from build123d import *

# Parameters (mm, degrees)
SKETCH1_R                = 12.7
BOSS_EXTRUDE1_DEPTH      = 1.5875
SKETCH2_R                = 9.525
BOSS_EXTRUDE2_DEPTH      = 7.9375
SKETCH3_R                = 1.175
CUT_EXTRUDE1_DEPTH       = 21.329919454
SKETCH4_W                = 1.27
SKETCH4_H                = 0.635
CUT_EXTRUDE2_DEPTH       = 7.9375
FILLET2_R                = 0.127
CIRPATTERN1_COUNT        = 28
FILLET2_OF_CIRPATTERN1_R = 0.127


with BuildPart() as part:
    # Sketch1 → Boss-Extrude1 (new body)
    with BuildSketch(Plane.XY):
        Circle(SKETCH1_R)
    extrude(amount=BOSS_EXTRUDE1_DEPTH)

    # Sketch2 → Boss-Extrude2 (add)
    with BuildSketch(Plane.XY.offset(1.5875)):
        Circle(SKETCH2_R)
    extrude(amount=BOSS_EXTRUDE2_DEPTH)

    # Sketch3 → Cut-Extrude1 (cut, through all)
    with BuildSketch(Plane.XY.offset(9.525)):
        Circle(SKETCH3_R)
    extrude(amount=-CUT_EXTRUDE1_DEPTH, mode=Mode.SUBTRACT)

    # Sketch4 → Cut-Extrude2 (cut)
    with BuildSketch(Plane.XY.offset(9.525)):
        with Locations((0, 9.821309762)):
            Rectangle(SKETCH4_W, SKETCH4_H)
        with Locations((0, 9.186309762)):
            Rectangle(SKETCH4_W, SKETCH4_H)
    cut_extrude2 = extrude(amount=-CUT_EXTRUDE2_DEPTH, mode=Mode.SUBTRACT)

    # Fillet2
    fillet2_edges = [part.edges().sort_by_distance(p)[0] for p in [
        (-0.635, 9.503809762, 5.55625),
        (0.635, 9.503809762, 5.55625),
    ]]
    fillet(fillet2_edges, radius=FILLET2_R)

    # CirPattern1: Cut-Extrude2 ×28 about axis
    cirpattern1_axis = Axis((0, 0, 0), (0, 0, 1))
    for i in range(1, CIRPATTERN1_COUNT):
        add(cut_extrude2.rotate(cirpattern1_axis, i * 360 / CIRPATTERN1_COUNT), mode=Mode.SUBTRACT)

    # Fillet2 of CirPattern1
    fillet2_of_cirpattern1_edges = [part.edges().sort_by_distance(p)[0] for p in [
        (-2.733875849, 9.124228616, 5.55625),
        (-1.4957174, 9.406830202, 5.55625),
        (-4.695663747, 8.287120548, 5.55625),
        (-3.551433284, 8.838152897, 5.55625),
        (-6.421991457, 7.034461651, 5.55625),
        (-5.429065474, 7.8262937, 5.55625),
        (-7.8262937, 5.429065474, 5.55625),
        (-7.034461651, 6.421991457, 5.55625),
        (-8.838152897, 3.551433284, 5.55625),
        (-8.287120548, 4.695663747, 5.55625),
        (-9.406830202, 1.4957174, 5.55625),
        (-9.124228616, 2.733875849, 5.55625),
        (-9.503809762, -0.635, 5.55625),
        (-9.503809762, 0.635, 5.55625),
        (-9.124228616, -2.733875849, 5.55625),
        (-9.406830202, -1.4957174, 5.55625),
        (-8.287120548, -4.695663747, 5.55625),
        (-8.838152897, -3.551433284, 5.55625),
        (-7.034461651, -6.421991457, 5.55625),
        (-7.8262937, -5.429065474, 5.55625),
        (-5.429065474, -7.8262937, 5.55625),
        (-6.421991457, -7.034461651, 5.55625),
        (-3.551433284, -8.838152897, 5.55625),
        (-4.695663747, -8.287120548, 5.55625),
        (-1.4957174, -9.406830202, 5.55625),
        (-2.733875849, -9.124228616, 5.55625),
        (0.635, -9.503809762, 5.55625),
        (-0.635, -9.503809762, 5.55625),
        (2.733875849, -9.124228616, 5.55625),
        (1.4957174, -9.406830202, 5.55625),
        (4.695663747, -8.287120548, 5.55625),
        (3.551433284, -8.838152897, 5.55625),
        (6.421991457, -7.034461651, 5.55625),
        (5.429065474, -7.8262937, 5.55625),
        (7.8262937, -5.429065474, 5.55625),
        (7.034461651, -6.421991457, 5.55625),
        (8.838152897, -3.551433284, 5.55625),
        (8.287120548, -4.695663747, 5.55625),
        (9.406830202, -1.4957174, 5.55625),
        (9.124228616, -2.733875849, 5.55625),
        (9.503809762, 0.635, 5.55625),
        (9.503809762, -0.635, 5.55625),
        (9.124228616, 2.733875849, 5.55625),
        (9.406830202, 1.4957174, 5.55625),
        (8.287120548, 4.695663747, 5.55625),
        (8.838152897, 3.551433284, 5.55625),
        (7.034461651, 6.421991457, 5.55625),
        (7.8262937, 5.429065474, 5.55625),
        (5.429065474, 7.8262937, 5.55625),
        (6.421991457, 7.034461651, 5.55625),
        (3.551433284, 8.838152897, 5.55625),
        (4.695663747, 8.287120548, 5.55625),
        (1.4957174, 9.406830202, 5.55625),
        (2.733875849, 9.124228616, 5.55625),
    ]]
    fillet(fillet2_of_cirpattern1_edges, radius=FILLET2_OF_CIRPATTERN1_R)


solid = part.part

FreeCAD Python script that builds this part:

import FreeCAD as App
import Part
import Sketcher
Q = App.Units.Quantity


def edges_at(feature, points):
    """Names of the edges that pass closest to the given points."""
    edges = feature.Shape.Edges
    near = lambda p: min(range(len(edges)), key=lambda i: edges[i].distToShape(Part.Vertex(*p))[0])
    return sorted({f"Edge{near(p) + 1}" for p in points})


def add_polygon(sketch, points):
    """Adds a closed chain of lines whose ends are joined by coincident constraints."""
    first, n = sketch.GeometryCount, len(points)
    for a, b in zip(points, points[1:] + points[:1]):
        sketch.addGeometry(Part.LineSegment(App.Vector(*a, 0), App.Vector(*b, 0)), False)
    for i in range(n):
        sketch.addConstraint(Sketcher.Constraint("Coincident", first + i, 2, first + (i + 1) % n, 1))

doc = App.newDocument("Part")
body = doc.addObject("PartDesign::Body", "Body")

sketch1 = body.newObject("Sketcher::SketchObject", "Sketch")
sketch1.AttachmentSupport = (doc.getObject("XY_Plane"), [""])
sketch1.MapMode = "FlatFace"
sketch1.addGeometry(Part.Circle(App.Vector(0, 0, 0), App.Vector(0, 0, 1), 13), False)
sketch1.addConstraint(Sketcher.Constraint("Coincident", 0, 3, -1, 1))
sketch1.addConstraint(Sketcher.Constraint("Diameter", 0, Q("1 in")))
pad1 = body.newObject("PartDesign::Pad", "Pad")
pad1.Profile = sketch1
pad1.Length = Q("0.0625 in")

sketch2 = body.newObject("Sketcher::SketchObject", "Sketch001")
sketch2.AttachmentSupport = (doc.getObject("XY_Plane"), [""])
sketch2.MapMode = "FlatFace"
sketch2.AttachmentOffset = App.Placement(App.Vector(0, 0, 0.0625 * 25.4), App.Rotation())
sketch2.addGeometry(Part.Circle(App.Vector(0, 0, 0), App.Vector(0, 0, 1), 10), False)
sketch2.addConstraint(Sketcher.Constraint("Coincident", 0, 3, -1, 1))
sketch2.addConstraint(Sketcher.Constraint("Diameter", 0, Q("0.75 in")))
pad2 = body.newObject("PartDesign::Pad", "Pad001")
pad2.Profile = sketch2
pad2.Length = Q("0.3125 in")

sketch3 = body.newObject("Sketcher::SketchObject", "Sketch002")
sketch3.AttachmentSupport = (doc.getObject("XY_Plane"), [""])
sketch3.MapMode = "FlatFace"
sketch3.AttachmentOffset = App.Placement(App.Vector(0, 0, 0.375 * 25.4), App.Rotation())
sketch3.addGeometry(Part.Circle(App.Vector(0, 0, 0), App.Vector(0, 0, 1), 1.2), False)
sketch3.addConstraint(Sketcher.Constraint("Coincident", 0, 3, -1, 1))
sketch3.addConstraint(Sketcher.Constraint("Diameter", 0, 2.35))
pocket1 = body.newObject("PartDesign::Pocket", "Pocket")
pocket1.Profile = sketch3
pocket1.Type = "ThroughAll"

sketch4 = body.newObject("Sketcher::SketchObject", "Sketch003")
sketch4.AttachmentSupport = (doc.getObject("XY_Plane"), [""])
sketch4.MapMode = "FlatFace"
sketch4.AttachmentOffset = App.Placement(App.Vector(0, 0, 0.375 * 25.4), App.Rotation())
add_polygon(sketch4, [(-0.6, 10.1), (-0.6, 8.9), (0.6, 8.9), (0.6, 10.1)])
sketch4.addConstraint(Sketcher.Constraint("Vertical", 0))
sketch4.addConstraint(Sketcher.Constraint("Horizontal", 1))
sketch4.addConstraint(Sketcher.Constraint("Vertical", 2))
sketch4.addConstraint(Sketcher.Constraint("Horizontal", 3))
sketch4.addConstraint(Sketcher.Constraint("Equal", 3, 0))
sketch4.addConstraint(Sketcher.Constraint("DistanceX", 1, 1, 1, 2, Q("0.05 in")))
sketch4.addConstraint(Sketcher.Constraint("DistanceX", 0, 2, -1, 1, Q("0.025 in")))
sketch4.addConstraint(Sketcher.Constraint("DistanceY", -1, 1, 0, 2, 8.86881))
pocket2 = body.newObject("PartDesign::Pocket", "Pocket001")
pocket2.Profile = sketch4
pocket2.Length = Q("0.3125 in")
doc.recompute()

fillet = body.newObject("PartDesign::Fillet", "Fillet")
fillet.Base = (pocket2, edges_at(pocket2, [(-0.635, 9.504, 5.556), (0.635, 9.504, 5.556)]))
fillet.Radius = Q("0.005 in")
doc.recompute()

polarpattern = body.newObject("PartDesign::PolarPattern", "PolarPattern")
polarpattern.Originals = [pocket2]
polarpattern.Axis = (doc.getObject("Z_Axis"), [""])
polarpattern.Angle = 360
polarpattern.Occurrences = 28
body.Tip = polarpattern
doc.recompute()

fillet2 = body.newObject("PartDesign::Fillet", "Fillet001")
fillet2.Base = (polarpattern, edges_at(polarpattern, [
    (-2.734, 9.124, 5.556),
    (-1.496, 9.407, 5.556),
    (-4.696, 8.287, 5.556),
    (-3.551, 8.838, 5.556),
    (-6.422, 7.034, 5.556),
    (-5.429, 7.826, 5.556),
    (-7.826, 5.429, 5.556),
    (-7.034, 6.422, 5.556),
    (-8.838, 3.551, 5.556),
    (-8.287, 4.696, 5.556),
    (-9.407, 1.496, 5.556),
    (-9.124, 2.734, 5.556),
    (-9.504, -0.635, 5.556),
    (-9.504, 0.635, 5.556),
    (-9.124, -2.734, 5.556),
    (-9.407, -1.496, 5.556),
    (-8.287, -4.696, 5.556),
    (-8.838, -3.551, 5.556),
    (-7.034, -6.422, 5.556),
    (-7.826, -5.429, 5.556),
    (-5.429, -7.826, 5.556),
    (-6.422, -7.034, 5.556),
    (-3.551, -8.838, 5.556),
    (-4.696, -8.287, 5.556),
    (-1.496, -9.407, 5.556),
    (-2.734, -9.124, 5.556),
    (0.635, -9.504, 5.556),
    (-0.635, -9.504, 5.556),
    (2.734, -9.124, 5.556),
    (1.496, -9.407, 5.556),
    (4.696, -8.287, 5.556),
    (3.551, -8.838, 5.556),
    (6.422, -7.034, 5.556),
    (5.429, -7.826, 5.556),
    (7.826, -5.429, 5.556),
    (7.034, -6.422, 5.556),
    (8.838, -3.551, 5.556),
    (8.287, -4.696, 5.556),
    (9.407, -1.496, 5.556),
    (9.124, -2.734, 5.556),
    (9.504, 0.635, 5.556),
    (9.504, -0.635, 5.556),
    (9.124, 2.734, 5.556),
    (9.407, 1.496, 5.556),
    (8.287, 4.696, 5.556),
    (8.838, 3.551, 5.556),
    (7.034, 6.422, 5.556),
    (7.826, 5.429, 5.556),
    (5.429, 7.826, 5.556),
    (6.422, 7.034, 5.556),
    (3.551, 8.838, 5.556),
    (4.696, 8.287, 5.556),
    (1.496, 9.407, 5.556),
    (2.734, 9.124, 5.556),
]))
fillet2.Radius = Q("0.005 in")

doc.recompute()
